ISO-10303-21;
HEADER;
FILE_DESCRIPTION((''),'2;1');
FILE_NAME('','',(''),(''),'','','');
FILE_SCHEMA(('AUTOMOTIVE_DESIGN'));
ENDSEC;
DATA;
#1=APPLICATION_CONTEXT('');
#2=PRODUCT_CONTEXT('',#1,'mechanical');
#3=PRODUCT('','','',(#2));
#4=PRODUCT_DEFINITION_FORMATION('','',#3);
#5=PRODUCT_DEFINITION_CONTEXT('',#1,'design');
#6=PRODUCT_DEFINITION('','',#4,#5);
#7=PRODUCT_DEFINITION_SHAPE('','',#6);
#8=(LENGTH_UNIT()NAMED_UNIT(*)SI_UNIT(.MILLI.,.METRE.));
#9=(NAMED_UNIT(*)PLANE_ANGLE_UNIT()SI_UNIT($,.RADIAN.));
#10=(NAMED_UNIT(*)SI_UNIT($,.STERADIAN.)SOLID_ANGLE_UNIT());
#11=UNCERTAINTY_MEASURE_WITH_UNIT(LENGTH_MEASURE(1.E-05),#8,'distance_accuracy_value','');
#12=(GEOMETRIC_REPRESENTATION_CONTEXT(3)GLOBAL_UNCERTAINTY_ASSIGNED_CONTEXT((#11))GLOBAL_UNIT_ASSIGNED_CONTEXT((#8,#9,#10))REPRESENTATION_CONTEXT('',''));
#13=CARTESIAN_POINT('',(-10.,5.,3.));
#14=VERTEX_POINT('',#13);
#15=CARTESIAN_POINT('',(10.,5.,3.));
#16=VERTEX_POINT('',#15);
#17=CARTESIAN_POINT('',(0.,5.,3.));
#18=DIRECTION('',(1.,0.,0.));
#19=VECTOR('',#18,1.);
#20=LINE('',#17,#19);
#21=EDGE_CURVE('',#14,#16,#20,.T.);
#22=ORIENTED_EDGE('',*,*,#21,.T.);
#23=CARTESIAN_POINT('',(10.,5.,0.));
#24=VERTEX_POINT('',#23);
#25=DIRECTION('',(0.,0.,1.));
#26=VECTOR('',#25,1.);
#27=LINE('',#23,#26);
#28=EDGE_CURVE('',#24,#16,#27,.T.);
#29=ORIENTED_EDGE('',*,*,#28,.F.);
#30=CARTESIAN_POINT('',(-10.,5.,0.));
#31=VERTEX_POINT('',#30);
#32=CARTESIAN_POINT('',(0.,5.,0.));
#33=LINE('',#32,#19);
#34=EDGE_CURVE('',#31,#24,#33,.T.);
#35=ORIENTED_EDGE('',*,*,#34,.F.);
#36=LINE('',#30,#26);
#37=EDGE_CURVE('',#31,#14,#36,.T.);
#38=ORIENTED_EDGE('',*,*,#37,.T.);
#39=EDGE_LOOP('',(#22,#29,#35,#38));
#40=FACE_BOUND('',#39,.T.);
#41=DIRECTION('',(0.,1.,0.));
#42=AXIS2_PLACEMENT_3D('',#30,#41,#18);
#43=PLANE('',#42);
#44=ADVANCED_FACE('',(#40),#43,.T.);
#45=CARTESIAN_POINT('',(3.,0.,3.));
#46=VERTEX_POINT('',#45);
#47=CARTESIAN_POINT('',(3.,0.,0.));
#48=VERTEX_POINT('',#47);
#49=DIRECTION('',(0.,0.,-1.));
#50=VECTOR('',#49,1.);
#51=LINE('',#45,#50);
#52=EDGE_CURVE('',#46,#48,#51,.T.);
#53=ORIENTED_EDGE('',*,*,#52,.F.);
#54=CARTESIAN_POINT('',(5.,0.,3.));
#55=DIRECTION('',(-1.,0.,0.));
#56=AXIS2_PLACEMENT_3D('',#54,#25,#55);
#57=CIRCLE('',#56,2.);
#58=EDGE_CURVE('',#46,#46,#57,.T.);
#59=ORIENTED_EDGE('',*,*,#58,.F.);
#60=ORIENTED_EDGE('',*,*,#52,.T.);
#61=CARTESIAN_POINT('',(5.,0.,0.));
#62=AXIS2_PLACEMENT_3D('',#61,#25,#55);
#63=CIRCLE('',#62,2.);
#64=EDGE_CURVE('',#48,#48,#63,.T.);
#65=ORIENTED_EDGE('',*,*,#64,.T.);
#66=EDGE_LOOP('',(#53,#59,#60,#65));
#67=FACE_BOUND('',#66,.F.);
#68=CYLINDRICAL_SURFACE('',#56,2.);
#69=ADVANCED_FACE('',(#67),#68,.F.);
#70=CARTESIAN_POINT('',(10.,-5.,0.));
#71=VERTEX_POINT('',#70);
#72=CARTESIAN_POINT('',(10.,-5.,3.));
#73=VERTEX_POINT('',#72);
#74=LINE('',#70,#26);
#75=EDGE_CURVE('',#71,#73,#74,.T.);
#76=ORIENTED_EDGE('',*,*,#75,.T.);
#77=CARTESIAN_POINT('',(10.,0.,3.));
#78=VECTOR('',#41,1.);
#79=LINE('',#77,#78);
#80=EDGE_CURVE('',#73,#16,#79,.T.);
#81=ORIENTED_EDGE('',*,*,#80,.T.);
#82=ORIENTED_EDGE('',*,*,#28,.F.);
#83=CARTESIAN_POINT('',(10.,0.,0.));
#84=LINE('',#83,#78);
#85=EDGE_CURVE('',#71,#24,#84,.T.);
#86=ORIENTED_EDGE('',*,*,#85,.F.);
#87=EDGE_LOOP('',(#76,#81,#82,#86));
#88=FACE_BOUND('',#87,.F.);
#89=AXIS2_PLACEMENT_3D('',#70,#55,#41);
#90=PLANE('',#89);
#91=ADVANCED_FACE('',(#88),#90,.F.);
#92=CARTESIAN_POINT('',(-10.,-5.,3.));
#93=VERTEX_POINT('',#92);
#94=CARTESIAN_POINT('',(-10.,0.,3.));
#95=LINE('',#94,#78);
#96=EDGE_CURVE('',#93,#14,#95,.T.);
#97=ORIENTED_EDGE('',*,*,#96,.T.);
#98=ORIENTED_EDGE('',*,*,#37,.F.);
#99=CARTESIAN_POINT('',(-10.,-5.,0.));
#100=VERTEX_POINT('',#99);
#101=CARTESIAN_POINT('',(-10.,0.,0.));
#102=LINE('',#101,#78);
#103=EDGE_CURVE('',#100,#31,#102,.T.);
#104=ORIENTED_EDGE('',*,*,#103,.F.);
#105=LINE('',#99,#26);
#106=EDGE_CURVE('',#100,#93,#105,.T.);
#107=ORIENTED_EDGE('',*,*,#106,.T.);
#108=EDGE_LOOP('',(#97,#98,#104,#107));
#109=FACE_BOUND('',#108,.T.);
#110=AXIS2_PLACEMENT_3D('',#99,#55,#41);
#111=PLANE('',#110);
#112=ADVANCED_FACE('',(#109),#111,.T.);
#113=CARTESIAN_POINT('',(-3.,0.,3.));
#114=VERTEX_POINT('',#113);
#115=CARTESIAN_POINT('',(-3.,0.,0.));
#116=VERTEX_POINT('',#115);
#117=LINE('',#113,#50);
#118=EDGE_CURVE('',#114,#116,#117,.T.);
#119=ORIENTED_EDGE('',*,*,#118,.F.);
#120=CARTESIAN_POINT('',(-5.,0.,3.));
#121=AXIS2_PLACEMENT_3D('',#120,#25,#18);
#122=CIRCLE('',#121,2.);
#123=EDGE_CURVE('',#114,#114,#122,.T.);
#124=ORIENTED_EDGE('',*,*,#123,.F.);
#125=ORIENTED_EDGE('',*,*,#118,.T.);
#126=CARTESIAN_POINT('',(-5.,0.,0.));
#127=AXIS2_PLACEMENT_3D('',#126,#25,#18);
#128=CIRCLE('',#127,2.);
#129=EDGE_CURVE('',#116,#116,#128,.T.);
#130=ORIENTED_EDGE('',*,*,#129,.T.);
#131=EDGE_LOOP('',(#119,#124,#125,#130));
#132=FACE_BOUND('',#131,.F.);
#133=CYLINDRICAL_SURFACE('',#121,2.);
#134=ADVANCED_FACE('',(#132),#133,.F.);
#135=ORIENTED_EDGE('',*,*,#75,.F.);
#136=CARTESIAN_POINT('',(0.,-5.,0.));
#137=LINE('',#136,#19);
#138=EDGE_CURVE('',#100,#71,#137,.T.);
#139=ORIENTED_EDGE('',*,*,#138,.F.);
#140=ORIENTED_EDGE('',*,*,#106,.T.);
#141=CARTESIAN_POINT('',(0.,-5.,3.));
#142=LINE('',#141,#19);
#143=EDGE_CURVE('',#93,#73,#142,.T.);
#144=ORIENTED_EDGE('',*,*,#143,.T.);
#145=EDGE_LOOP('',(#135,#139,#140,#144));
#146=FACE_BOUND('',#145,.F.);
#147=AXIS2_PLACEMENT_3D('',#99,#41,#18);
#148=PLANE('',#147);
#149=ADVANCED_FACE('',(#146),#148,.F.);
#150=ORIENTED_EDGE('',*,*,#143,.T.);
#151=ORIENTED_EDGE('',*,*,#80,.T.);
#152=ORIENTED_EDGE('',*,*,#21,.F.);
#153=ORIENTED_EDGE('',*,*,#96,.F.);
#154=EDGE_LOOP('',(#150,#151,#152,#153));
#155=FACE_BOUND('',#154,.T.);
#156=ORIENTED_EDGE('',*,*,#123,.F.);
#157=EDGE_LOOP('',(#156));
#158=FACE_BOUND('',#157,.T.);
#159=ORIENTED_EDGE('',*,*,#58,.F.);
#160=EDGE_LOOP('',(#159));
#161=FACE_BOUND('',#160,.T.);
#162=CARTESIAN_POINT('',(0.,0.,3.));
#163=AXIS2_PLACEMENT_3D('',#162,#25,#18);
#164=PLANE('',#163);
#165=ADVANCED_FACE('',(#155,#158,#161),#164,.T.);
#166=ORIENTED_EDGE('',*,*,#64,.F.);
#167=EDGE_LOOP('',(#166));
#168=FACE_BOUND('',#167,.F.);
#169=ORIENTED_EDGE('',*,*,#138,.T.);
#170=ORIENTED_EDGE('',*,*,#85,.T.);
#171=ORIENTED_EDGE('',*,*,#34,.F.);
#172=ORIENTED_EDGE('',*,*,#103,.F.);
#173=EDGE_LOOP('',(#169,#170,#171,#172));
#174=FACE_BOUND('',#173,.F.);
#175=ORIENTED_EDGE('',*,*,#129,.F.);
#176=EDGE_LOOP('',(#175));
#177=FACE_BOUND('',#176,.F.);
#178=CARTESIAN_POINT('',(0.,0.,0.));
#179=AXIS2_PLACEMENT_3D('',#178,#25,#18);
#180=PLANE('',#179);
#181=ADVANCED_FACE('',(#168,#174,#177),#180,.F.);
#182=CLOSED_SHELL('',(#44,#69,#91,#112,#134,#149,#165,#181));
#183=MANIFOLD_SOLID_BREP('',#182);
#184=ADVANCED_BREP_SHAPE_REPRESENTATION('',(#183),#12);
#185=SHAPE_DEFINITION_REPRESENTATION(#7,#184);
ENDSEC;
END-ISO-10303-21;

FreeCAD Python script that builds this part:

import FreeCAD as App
import Part
import Sketcher

V = App.Vector
Q = App.Units.Quantity


def add_polygon(sketch, points):
    """Adds a closed chain of lines whose ends are joined by coincident constraints."""
    first, n = sketch.GeometryCount, len(points)
    for a, b in zip(points, points[1:] + points[:1]):
        sketch.addGeometry(Part.LineSegment(App.Vector(*a, 0), App.Vector(*b, 0)), False)
    for i in range(n):
        sketch.addConstraint(Sketcher.Constraint("Coincident", first + i, 2, first + (i + 1) % n, 1))

doc = App.newDocument("Part")
body = doc.addObject("PartDesign::Body", "Body")

# Sketch on XY plane
sketch1 = body.newObject("Sketcher::SketchObject", "Sketch")
sketch1.AttachmentSupport = (doc.getObject("XY_Plane"), [""])
sketch1.MapMode = "FlatFace"
add_polygon(sketch1, [(-10, 5), (-10, -5), (10, -5), (10, 5)])  # lines 0-3
sketch1.addConstraint([
    Sketcher.Constraint("Vertical", 0),
    Sketcher.Constraint("Horizontal", 1),
    Sketcher.Constraint("Vertical", 2),
    Sketcher.Constraint("Horizontal", 3),
    Sketcher.Constraint("Symmetric", 0, 2, 2, 2, -1, 1),
    Sketcher.Constraint("DistanceX", 1, 1, 1, 2, Q("20 mm")),
    Sketcher.Constraint("DistanceY", 0, 2, 0, 1, Q("10 mm")),
])
pad1 = body.newObject("PartDesign::Pad", "Pad")
pad1.Profile = sketch1
pad1.Length = 3

# Sketch on XY plane
sketch2 = body.newObject("Sketcher::SketchObject", "Sketch001")
sketch2.AttachmentSupport = (doc.getObject("XY_Plane"), [""])
sketch2.MapMode = "FlatFace"
sketch2.AttachmentOffset = App.Placement(V(0, 0, 3), App.Rotation())
sketch2.addGeometry([
    Part.Circle(V(5, 0, 0), V(0, 0, 1), 2),
    Part.Circle(V(-5, 0, 0), V(0, 0, 1), 2),
], False)
sketch2.addConstraint([
    Sketcher.Constraint("Equal", 0, 1),
    Sketcher.Constraint("Symmetric", 0, 3, 1, 3, -1, 1),
    Sketcher.Constraint("PointOnObject", 0, 3, -1),
    Sketcher.Constraint("Diameter", 0, Q("4 mm")),
    Sketcher.Constraint("DistanceX", -1, 1, 0, 3, Q("5 mm")),
])
pocket1 = body.newObject("PartDesign::Pocket", "Pocket")
pocket1.Profile = sketch2
pocket1.Length = 3

doc.recompute()
